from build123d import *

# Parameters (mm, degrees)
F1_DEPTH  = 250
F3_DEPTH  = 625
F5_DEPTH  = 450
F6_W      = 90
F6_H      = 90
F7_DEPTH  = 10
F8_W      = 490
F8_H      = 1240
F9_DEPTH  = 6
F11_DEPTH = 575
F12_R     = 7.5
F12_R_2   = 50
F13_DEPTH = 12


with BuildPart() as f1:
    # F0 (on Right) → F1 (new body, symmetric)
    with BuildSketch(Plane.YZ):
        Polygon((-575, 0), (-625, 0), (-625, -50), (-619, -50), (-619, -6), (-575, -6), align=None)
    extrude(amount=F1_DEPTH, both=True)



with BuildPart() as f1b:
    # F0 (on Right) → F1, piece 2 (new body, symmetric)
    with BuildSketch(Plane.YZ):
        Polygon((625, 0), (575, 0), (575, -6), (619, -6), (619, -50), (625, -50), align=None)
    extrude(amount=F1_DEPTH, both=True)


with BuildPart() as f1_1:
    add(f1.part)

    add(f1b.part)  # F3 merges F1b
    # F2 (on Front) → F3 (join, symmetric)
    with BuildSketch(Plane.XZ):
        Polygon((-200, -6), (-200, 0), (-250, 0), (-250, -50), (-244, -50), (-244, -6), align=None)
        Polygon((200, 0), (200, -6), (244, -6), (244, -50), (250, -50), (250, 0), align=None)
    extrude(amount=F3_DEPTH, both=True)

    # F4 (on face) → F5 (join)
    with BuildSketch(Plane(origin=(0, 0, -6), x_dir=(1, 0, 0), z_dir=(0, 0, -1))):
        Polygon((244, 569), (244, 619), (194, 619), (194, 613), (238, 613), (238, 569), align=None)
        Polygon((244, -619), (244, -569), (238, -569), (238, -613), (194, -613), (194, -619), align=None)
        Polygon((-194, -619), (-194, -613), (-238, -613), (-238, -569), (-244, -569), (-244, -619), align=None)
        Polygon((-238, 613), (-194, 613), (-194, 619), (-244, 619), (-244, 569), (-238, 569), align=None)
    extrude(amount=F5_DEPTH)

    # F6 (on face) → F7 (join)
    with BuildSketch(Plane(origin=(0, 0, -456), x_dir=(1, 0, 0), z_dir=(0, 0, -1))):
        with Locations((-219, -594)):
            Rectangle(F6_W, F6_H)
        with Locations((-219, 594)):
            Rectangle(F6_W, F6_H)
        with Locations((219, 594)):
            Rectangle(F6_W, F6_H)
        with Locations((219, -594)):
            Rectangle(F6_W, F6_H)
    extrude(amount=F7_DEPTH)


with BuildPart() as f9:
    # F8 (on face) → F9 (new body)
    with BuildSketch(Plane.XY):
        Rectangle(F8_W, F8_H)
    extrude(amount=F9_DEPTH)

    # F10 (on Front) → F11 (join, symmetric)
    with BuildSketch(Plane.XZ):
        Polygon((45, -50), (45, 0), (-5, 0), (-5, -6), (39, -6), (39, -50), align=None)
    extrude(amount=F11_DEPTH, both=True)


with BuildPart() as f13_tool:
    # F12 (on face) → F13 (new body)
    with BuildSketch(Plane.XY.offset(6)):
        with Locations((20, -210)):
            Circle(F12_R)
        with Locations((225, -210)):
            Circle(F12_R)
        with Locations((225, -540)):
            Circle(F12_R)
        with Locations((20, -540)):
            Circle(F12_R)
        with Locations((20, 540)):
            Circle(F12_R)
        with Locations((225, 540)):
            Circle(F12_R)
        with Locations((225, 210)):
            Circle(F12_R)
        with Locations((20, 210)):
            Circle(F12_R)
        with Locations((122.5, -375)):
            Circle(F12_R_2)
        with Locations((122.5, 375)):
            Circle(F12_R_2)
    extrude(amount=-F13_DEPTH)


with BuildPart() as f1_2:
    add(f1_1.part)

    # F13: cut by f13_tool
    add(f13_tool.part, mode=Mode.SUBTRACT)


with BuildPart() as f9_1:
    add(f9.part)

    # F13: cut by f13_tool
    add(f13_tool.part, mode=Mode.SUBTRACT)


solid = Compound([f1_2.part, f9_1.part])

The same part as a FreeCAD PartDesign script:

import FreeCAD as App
import Part
import Sketcher
Q = App.Units.Quantity

doc = App.newDocument("Part")
body = doc.addObject("PartDesign::Body", "Body")

# Sketch on YZ plane
sketch1 = doc.addObject("Sketcher::SketchObject", "Sketch")
body.addObject(sketch1)
sketch1.AttachmentSupport = (doc.YZ_Plane, [""])
sketch1.MapMode = "FlatFace"
sketch1.addGeometry(Part.LineSegment(App.Vector(-575, 0, 0), App.Vector(-625, 0, 0)), False)
sketch1.addGeometry(Part.LineSegment(App.Vector(-625, 0, 0), App.Vector(-625, -50, 0)), False)
sketch1.addGeometry(Part.LineSegment(App.Vector(-625, -50, 0), App.Vector(-619, -50, 0)), False)
sketch1.addGeometry(Part.LineSegment(App.Vector(-619, -50, 0), App.Vector(-619, -6, 0)), False)
sketch1.addGeometry(Part.LineSegment(App.Vector(-619, -6, 0), App.Vector(-575, -6, 0)), False)
sketch1.addGeometry(Part.LineSegment(App.Vector(-575, -6, 0), App.Vector(-575, 0, 0)), False)
sketch1.addConstraint(Sketcher.Constraint("Coincident", 0, 2, 1, 1))
sketch1.addConstraint(Sketcher.Constraint("Coincident", 1, 2, 2, 1))
sketch1.addConstraint(Sketcher.Constraint("Coincident", 2, 2, 3, 1))
sketch1.addConstraint(Sketcher.Constraint("Coincident", 3, 2, 4, 1))
sketch1.addConstraint(Sketcher.Constraint("Coincident", 4, 2, 5, 1))
sketch1.addConstraint(Sketcher.Constraint("Coincident", 5, 2, 0, 1))
sketch1.addConstraint(Sketcher.Constraint("Horizontal", 0))
sketch1.addConstraint(Sketcher.Constraint("Vertical", 1))
sketch1.addConstraint(Sketcher.Constraint("Horizontal", 2))
sketch1.addConstraint(Sketcher.Constraint("Vertical", 3))
sketch1.addConstraint(Sketcher.Constraint("Horizontal", 4))
sketch1.addConstraint(Sketcher.Constraint("Vertical", 5))
sketch1.addConstraint(Sketcher.Constraint("PointOnObject", 0, 2, -1))
sketch1.addConstraint(Sketcher.Constraint("Equal", 0, 1))
sketch1.addConstraint(Sketcher.Constraint("Equal", 4, 3))
sketch1.addConstraint(Sketcher.Constraint("DistanceX", 0, 2, 0, 1, Q("50 mm")))
sketch1.addConstraint(Sketcher.Constraint("DistanceX", 2, 1, 2, 2, Q("6 mm")))
sketch1.addConstraint(Sketcher.Constraint("DistanceX", 0, 2, -1, 1, Q("625 mm")))
pad1 = doc.addObject("PartDesign::Pad", "Pad")
body.addObject(pad1)
pad1.Profile = sketch1
pad1.Length = 500
pad1.Midplane = True
body2 = doc.addObject("PartDesign::Body", "Body001")

# Sketch on YZ plane
sketch2 = doc.addObject("Sketcher::SketchObject", "Sketch001")
body2.addObject(sketch2)
sketch2.AttachmentSupport = (doc.getObject("YZ_Plane001"), [""])
sketch2.MapMode = "FlatFace"
sketch2.addGeometry(Part.LineSegment(App.Vector(625, 0, 0), App.Vector(575, 0, 0)), False)
sketch2.addGeometry(Part.LineSegment(App.Vector(575, 0, 0), App.Vector(575, -6, 0)), False)
sketch2.addGeometry(Part.LineSegment(App.Vector(575, -6, 0), App.Vector(619, -6, 0)), False)
sketch2.addGeometry(Part.LineSegment(App.Vector(619, -6, 0), App.Vector(619, -50, 0)), False)
sketch2.addGeometry(Part.LineSegment(App.Vector(619, -50, 0), App.Vector(625, -50, 0)), False)
sketch2.addGeometry(Part.LineSegment(App.Vector(625, -50, 0), App.Vector(625, 0, 0)), False)
sketch2.addConstraint(Sketcher.Constraint("Coincident", 0, 2, 1, 1))
sketch2.addConstraint(Sketcher.Constraint("Coincident", 1, 2, 2, 1))
sketch2.addConstraint(Sketcher.Constraint("Coincident", 2, 2, 3, 1))
sketch2.addConstraint(Sketcher.Constraint("Coincident", 3, 2, 4, 1))
sketch2.addConstraint(Sketcher.Constraint("Coincident", 4, 2, 5, 1))
sketch2.addConstraint(Sketcher.Constraint("Coincident", 5, 2, 0, 1))
sketch2.addConstraint(Sketcher.Constraint("Horizontal", 0))
sketch2.addConstraint(Sketcher.Constraint("Vertical", 1))
sketch2.addConstraint(Sketcher.Constraint("Horizontal", 2))
sketch2.addConstraint(Sketcher.Constraint("Vertical", 3))
sketch2.addConstraint(Sketcher.Constraint("Horizontal", 4))
sketch2.addConstraint(Sketcher.Constraint("Vertical", 5))
sketch2.addConstraint(Sketcher.Constraint("PointOnObject", 0, 2, -1))
sketch2.addConstraint(Sketcher.Constraint("Equal", 4, 1))
sketch2.addConstraint(Sketcher.Constraint("Equal", 2, 3))
sketch2.addConstraint(Sketcher.Constraint("DistanceX", 0, 2, 0, 1, Q("50 mm")))
sketch2.addConstraint(Sketcher.Constraint("DistanceX", 2, 1, 2, 2, Q("44 mm")))
sketch2.addConstraint(Sketcher.Constraint("DistanceX", -1, 1, 0, 2, Q("575 mm")))
pad2 = doc.addObject("PartDesign::Pad", "Pad001")
body2.addObject(pad2)
pad2.Profile = sketch2
pad2.Length = 500
pad2.Midplane = True
body.AllowCompound = True
doc.recompute()

boolean = doc.addObject("PartDesign::Boolean", "Boolean")
body.addObject(boolean)
boolean.Type = "Fuse"
boolean.addObjects([body2])

# Sketch on XZ plane
sketch3 = doc.addObject("Sketcher::SketchObject", "Sketch002")
body.addObject(sketch3)
sketch3.AttachmentSupport = (doc.XZ_Plane, [""])
sketch3.MapMode = "FlatFace"
sketch3.addGeometry(Part.LineSegment(App.Vector(-200, -6, 0), App.Vector(-200, 0, 0)), False)
sketch3.addGeometry(Part.LineSegment(App.Vector(-200, 0, 0), App.Vector(-250, 0, 0)), False)
sketch3.addGeometry(Part.LineSegment(App.Vector(-250, 0, 0), App.Vector(-250, -50, 0)), False)
sketch3.addGeometry(Part.LineSegment(App.Vector(-250, -50, 0), App.Vector(-244, -50, 0)), False)
sketch3.addGeometry(Part.LineSegment(App.Vector(-244, -50, 0), App.Vector(-244, -6, 0)), False)
sketch3.addGeometry(Part.LineSegment(App.Vector(-244, -6, 0), App.Vector(-200, -6, 0)), False)
sketch3.addGeometry(Part.LineSegment(App.Vector(200, 0, 0), App.Vector(200, -6, 0)), False)
sketch3.addGeometry(Part.LineSegment(App.Vector(200, -6, 0), App.Vector(244, -6, 0)), False)
sketch3.addGeometry(Part.LineSegment(App.Vector(244, -6, 0), App.Vector(244, -50, 0)), False)
sketch3.addGeometry(Part.LineSegment(App.Vector(244, -50, 0), App.Vector(250, -50, 0)), False)
sketch3.addGeometry(Part.LineSegment(App.Vector(250, -50, 0), App.Vector(250, 0, 0)), False)
sketch3.addGeometry(Part.LineSegment(App.Vector(250, 0, 0), App.Vector(200, 0, 0)), False)
sketch3.addConstraint(Sketcher.Constraint("Coincident", 0, 2, 1, 1))
sketch3.addConstraint(Sketcher.Constraint("Coincident", 1, 2, 2, 1))
sketch3.addConstraint(Sketcher.Constraint("Coincident", 2, 2, 3, 1))
sketch3.addConstraint(Sketcher.Constraint("Coincident", 3, 2, 4, 1))
sketch3.addConstraint(Sketcher.Constraint("Coincident", 4, 2, 5, 1))
sketch3.addConstraint(Sketcher.Constraint("Coincident", 5, 2, 0, 1))
sketch3.addConstraint(Sketcher.Constraint("Coincident", 6, 2, 7, 1))
sketch3.addConstraint(Sketcher.Constraint("Coincident", 7, 2, 8, 1))
sketch3.addConstraint(Sketcher.Constraint("Coincident", 8, 2, 9, 1))
sketch3.addConstraint(Sketcher.Constraint("Coincident", 9, 2, 10, 1))
sketch3.addConstraint(Sketcher.Constraint("Coincident", 10, 2, 11, 1))
sketch3.addConstraint(Sketcher.Constraint("Coincident", 11, 2, 6, 1))
sketch3.addConstraint(Sketcher.Constraint("Vertical", 0))
sketch3.addConstraint(Sketcher.Constraint("Horizontal", 1))
sketch3.addConstraint(Sketcher.Constraint("Vertical", 2))
sketch3.addConstraint(Sketcher.Constraint("Horizontal", 3))
sketch3.addConstraint(Sketcher.Constraint("Vertical", 4))
sketch3.addConstraint(Sketcher.Constraint("Horizontal", 5))
sketch3.addConstraint(Sketcher.Constraint("Vertical", 6))
sketch3.addConstraint(Sketcher.Constraint("Horizontal", 7))
sketch3.addConstraint(Sketcher.Constraint("Vertical", 8))
sketch3.addConstraint(Sketcher.Constraint("Horizontal", 9))
sketch3.addConstraint(Sketcher.Constraint("Vertical", 10))
sketch3.addConstraint(Sketcher.Constraint("Horizontal", 11))
sketch3.addConstraint(Sketcher.Constraint("Symmetric", 1, 2, 10, 2, -1, 1))
sketch3.addConstraint(Sketcher.Constraint("Symmetric", 5, 2, 6, 2, -2))
sketch3.addConstraint(Sketcher.Constraint("Symmetric", 3, 2, 8, 2, -2))
sketch3.addConstraint(Sketcher.Constraint("PointOnObject", 0, 2, -1))
sketch3.addConstraint(Sketcher.Constraint("Equal", 9, 0))
sketch3.addConstraint(Sketcher.Constraint("Equal", 11, 2))
sketch3.addConstraint(Sketcher.Constraint("DistanceX", 1, 2, 1, 1, Q("50 mm")))
sketch3.addConstraint(Sketcher.Constraint("DistanceX", 3, 1, 3, 2, Q("6 mm")))
sketch3.addConstraint(Sketcher.Constraint("DistanceX", 0, 2, -1, 1, Q("200 mm")))
pad3 = doc.addObject("PartDesign::Pad", "Pad002")
body.addObject(pad3)
pad3.Profile = sketch3
pad3.Length = 1250
pad3.Midplane = True

# Sketch on XY plane
sketch4 = doc.addObject("Sketcher::SketchObject", "Sketch003")
body.addObject(sketch4)
sketch4.AttachmentSupport = (doc.XY_Plane, [""])
sketch4.MapMode = "FlatFace"
sketch4.AttachmentOffset = App.Placement(App.Vector(0, 0, -6), App.Rotation())
sketch4.addGeometry(Part.LineSegment(App.Vector(244, -569, 0), App.Vector(244, -619, 0)), False)
sketch4.addGeometry(Part.LineSegment(App.Vector(244, -619, 0), App.Vector(194, -619, 0)), False)
sketch4.addGeometry(Part.LineSegment(App.Vector(194, -619, 0), App.Vector(194, -613, 0)), False)
sketch4.addGeometry(Part.LineSegment(App.Vector(194, -613, 0), App.Vector(238, -613, 0)), False)
sketch4.addGeometry(Part.LineSegment(App.Vector(238, -613, 0), App.Vector(238, -569, 0)), False)
sketch4.addGeometry(Part.LineSegment(App.Vector(238, -569, 0), App.Vector(244, -569, 0)), False)
sketch4.addGeometry(Part.LineSegment(App.Vector(244, 619, 0), App.Vector(244, 569, 0)), False)
sketch4.addGeometry(Part.LineSegment(App.Vector(244, 569, 0), App.Vector(238, 569, 0)), False)
sketch4.addGeometry(Part.LineSegment(App.Vector(238, 569, 0), App.Vector(238, 613, 0)), False)
sketch4.addGeometry(Part.LineSegment(App.Vector(238, 613, 0), App.Vector(194, 613, 0)), False)
sketch4.addGeometry(Part.LineSegment(App.Vector(194, 613, 0), App.Vector(194, 619, 0)), False)
sketch4.addGeometry(Part.LineSegment(App.Vector(194, 619, 0), App.Vector(244, 619, 0)), False)
sketch4.addGeometry(Part.LineSegment(App.Vector(-194, 619, 0), App.Vector(-194, 613, 0)), False)
sketch4.addGeometry(Part.LineSegment(App.Vector(-194, 613, 0), App.Vector(-238, 613, 0)), False)
sketch4.addGeometry(Part.LineSegment(App.Vector(-238, 613, 0), App.Vector(-238, 569, 0)), False)
sketch4.addGeometry(Part.LineSegment(App.Vector(-238, 569, 0), App.Vector(-244, 569, 0)), False)
sketch4.addGeometry(Part.LineSegment(App.Vector(-244, 569, 0), App.Vector(-244, 619, 0)), False)
sketch4.addGeometry(Part.LineSegment(App.Vector(-244, 619, 0), App.Vector(-194, 619, 0)), False)
sketch4.addGeometry(Part.LineSegment(App.Vector(-238, -613, 0), App.Vector(-194, -613, 0)), False)
sketch4.addGeometry(Part.LineSegment(App.Vector(-194, -613, 0), App.Vector(-194, -619, 0)), False)
sketch4.addGeometry(Part.LineSegment(App.Vector(-194, -619, 0), App.Vector(-244, -619, 0)), False)
sketch4.addGeometry(Part.LineSegment(App.Vector(-244, -619, 0), App.Vector(-244, -569, 0)), False)
sketch4.addGeometry(Part.LineSegment(App.Vector(-244, -569, 0), App.Vector(-238, -569, 0)), False)
sketch4.addGeometry(Part.LineSegment(App.Vector(-238, -569, 0), App.Vector(-238, -613, 0)), False)
sketch4.addConstraint(Sketcher.Constraint("Coincident", 0, 2, 1, 1))
sketch4.addConstraint(Sketcher.Constraint("Coincident", 1, 2, 2, 1))
sketch4.addConstraint(Sketcher.Constraint("Coincident", 2, 2, 3, 1))
sketch4.addConstraint(Sketcher.Constraint("Coincident", 3, 2, 4, 1))
sketch4.addConstraint(Sketcher.Constraint("Coincident", 4, 2, 5, 1))
sketch4.addConstraint(Sketcher.Constraint("Coincident", 5, 2, 0, 1))
sketch4.addConstraint(Sketcher.Constraint("Coincident", 6, 2, 7, 1))
sketch4.addConstraint(Sketcher.Constraint("Coincident", 7, 2, 8, 1))
sketch4.addConstraint(Sketcher.Constraint("Coincident", 8, 2, 9, 1))
sketch4.addConstraint(Sketcher.Constraint("Coincident", 9, 2, 10, 1))
sketch4.addConstraint(Sketcher.Constraint("Coincident", 10, 2, 11, 1))
sketch4.addConstraint(Sketcher.Constraint("Coincident", 11, 2, 6, 1))
sketch4.addConstraint(Sketcher.Constraint("Coincident", 12, 2, 13, 1))
sketch4.addConstraint(Sketcher.Constraint("Coincident", 13, 2, 14, 1))
sketch4.addConstraint(Sketcher.Constraint("Coincident", 14, 2, 15, 1))
sketch4.addConstraint(Sketcher.Constraint("Coincident", 15, 2, 16, 1))
sketch4.addConstraint(Sketcher.Constraint("Coincident", 16, 2, 17, 1))
sketch4.addConstraint(Sketcher.Constraint("Coincident", 17, 2, 12, 1))
sketch4.addConstraint(Sketcher.Constraint("Coincident", 18, 2, 19, 1))
sketch4.addConstraint(Sketcher.Constraint("Coincident", 19, 2, 20, 1))
sketch4.addConstraint(Sketcher.Constraint("Coincident", 20, 2, 21, 1))
sketch4.addConstraint(Sketcher.Constraint("Coincident", 21, 2, 22, 1))
sketch4.addConstraint(Sketcher.Constraint("Coincident", 22, 2, 23, 1))
sketch4.addConstraint(Sketcher.Constraint("Coincident", 23, 2, 18, 1))
sketch4.addConstraint(Sketcher.Constraint("Vertical", 0))
sketch4.addConstraint(Sketcher.Constraint("Horizontal", 1))
sketch4.addConstraint(Sketcher.Constraint("Vertical", 2))
sketch4.addConstraint(Sketcher.Constraint("Horizontal", 3))
sketch4.addConstraint(Sketcher.Constraint("Vertical", 4))
sketch4.addConstraint(Sketcher.Constraint("Horizontal", 5))
sketch4.addConstraint(Sketcher.Constraint("Vertical", 6))
sketch4.addConstraint(Sketcher.Constraint("Horizontal", 7))
sketch4.addConstraint(Sketcher.Constraint("Vertical", 8))
sketch4.addConstraint(Sketcher.Constraint("Horizontal", 9))
sketch4.addConstraint(Sketcher.Constraint("Vertical", 10))
sketch4.addConstraint(Sketcher.Constraint("Horizontal", 11))
sketch4.addConstraint(Sketcher.Constraint("Vertical", 12))
sketch4.addConstraint(Sketcher.Constraint("Horizontal", 13))
sketch4.addConstraint(Sketcher.Constraint("Vertical", 14))
sketch4.addConstraint(Sketcher.Constraint("Horizontal", 15))
sketch4.addConstraint(Sketcher.Constraint("Vertical", 16))
sketch4.addConstraint(Sketcher.Constraint("Horizontal", 17))
sketch4.addConstraint(Sketcher.Constraint("Horizontal", 18))
sketch4.addConstraint(Sketcher.Constraint("Vertical", 19))
sketch4.addConstraint(Sketcher.Constraint("Horizontal", 20))
sketch4.addConstraint(Sketcher.Constraint("Vertical", 21))
sketch4.addConstraint(Sketcher.Constraint("Horizontal", 22))
sketch4.addConstraint(Sketcher.Constraint("Vertical", 23))
sketch4.addConstraint(Sketcher.Constraint("Symmetric", 2, 2, 12, 2, -1, 1))
sketch4.addConstraint(Sketcher.Constraint("Symmetric", 4, 2, 14, 2, -1, 1))
sketch4.addConstraint(Sketcher.Constraint("Symmetric", 0, 2, 16, 2, -1, 1))
sketch4.addConstraint(Sketcher.Constraint("Symmetric", 9, 2, 18, 2, -1, 1))
sketch4.addConstraint(Sketcher.Constraint("Symmetric", 11, 2, 20, 2, -1, 1))
sketch4.addConstraint(Sketcher.Constraint("Symmetric", 7, 2, 22, 2, -1, 1))
sketch4.addConstraint(Sketcher.Constraint("Symmetric", 9, 2, 12, 2, -2))
sketch4.addConstraint(Sketcher.Constraint("Symmetric", 7, 2, 14, 2, -2))
sketch4.addConstraint(Sketcher.Constraint("Symmetric", 11, 2, 16, 2, -2))
sketch4.addConstraint(Sketcher.Constraint("Equal", 20, 0))
sketch4.addConstraint(Sketcher.Constraint("Equal", 22, 2))
sketch4.addConstraint(Sketcher.Constraint("DistanceX", 1, 2, 1, 1, Q("50 mm")))
sketch4.addConstraint(Sketcher.Constraint("DistanceX", 3, 1, 3, 2, Q("44 mm")))
sketch4.addConstraint(Sketcher.Constraint("DistanceX", -1, 1, 0, 2, Q("244 mm")))
sketch4.addConstraint(Sketcher.Constraint("DistanceY", 0, 2, -1, 1, Q("619 mm")))
pad4 = doc.addObject("PartDesign::Pad", "Pad003")
body.addObject(pad4)
pad4.Profile = sketch4
pad4.Length = 450
pad4.Reversed = True

# Sketch on XY plane
sketch5 = doc.addObject("Sketcher::SketchObject", "Sketch004")
body.addObject(sketch5)
sketch5.AttachmentSupport = (doc.XY_Plane, [""])
sketch5.MapMode = "FlatFace"
sketch5.AttachmentOffset = App.Placement(App.Vector(0, 0, -456), App.Rotation())
sketch5.addGeometry(Part.LineSegment(App.Vector(-264, 549, 0), App.Vector(-264, 639, 0)), False)
sketch5.addGeometry(Part.LineSegment(App.Vector(-264, 639, 0), App.Vector(-174, 639, 0)), False)
sketch5.addGeometry(Part.LineSegment(App.Vector(-174, 639, 0), App.Vector(-174, 549, 0)), False)
sketch5.addGeometry(Part.LineSegment(App.Vector(-174, 549, 0), App.Vector(-264, 549, 0)), False)
sketch5.addGeometry(Part.LineSegment(App.Vector(-264, -639, 0), App.Vector(-264, -549, 0)), False)
sketch5.addGeometry(Part.LineSegment(App.Vector(-264, -549, 0), App.Vector(-174, -549, 0)), False)
sketch5.addGeometry(Part.LineSegment(App.Vector(-174, -549, 0), App.Vector(-174, -639, 0)), False)
sketch5.addGeometry(Part.LineSegment(App.Vector(-174, -639, 0), App.Vector(-264, -639, 0)), False)
sketch5.addGeometry(Part.LineSegment(App.Vector(174, -639, 0), App.Vector(174, -549, 0)), False)
sketch5.addGeometry(Part.LineSegment(App.Vector(174, -549, 0), App.Vector(264, -549, 0)), False)
sketch5.addGeometry(Part.LineSegment(App.Vector(264, -549, 0), App.Vector(264, -639, 0)), False)
sketch5.addGeometry(Part.LineSegment(App.Vector(264, -639, 0), App.Vector(174, -639, 0)), False)
sketch5.addGeometry(Part.LineSegment(App.Vector(174, 549, 0), App.Vector(174, 639, 0)), False)
sketch5.addGeometry(Part.LineSegment(App.Vector(174, 639, 0), App.Vector(264, 639, 0)), False)
sketch5.addGeometry(Part.LineSegment(App.Vector(264, 639, 0), App.Vector(264, 549, 0)), False)
sketch5.addGeometry(Part.LineSegment(App.Vector(264, 549, 0), App.Vector(174, 549, 0)), False)
sketch5.addConstraint(Sketcher.Constraint("Coincident", 0, 2, 1, 1))
sketch5.addConstraint(Sketcher.Constraint("Coincident", 1, 2, 2, 1))
sketch5.addConstraint(Sketcher.Constraint("Coincident", 2, 2, 3, 1))
sketch5.addConstraint(Sketcher.Constraint("Coincident", 3, 2, 0, 1))
sketch5.addConstraint(Sketcher.Constraint("Coincident", 4, 2, 5, 1))
sketch5.addConstraint(Sketcher.Constraint("Coincident", 5, 2, 6, 1))
sketch5.addConstraint(Sketcher.Constraint("Coincident", 6, 2, 7, 1))
sketch5.addConstraint(Sketcher.Constraint("Coincident", 7, 2, 4, 1))
sketch5.addConstraint(Sketcher.Constraint("Coincident", 8, 2, 9, 1))
sketch5.addConstraint(Sketcher.Constraint("Coincident", 9, 2, 10, 1))
sketch5.addConstraint(Sketcher.Constraint("Coincident", 10, 2, 11, 1))
sketch5.addConstraint(Sketcher.Constraint("Coincident", 11, 2, 8, 1))
sketch5.addConstraint(Sketcher.Constraint("Coincident", 12, 2, 13, 1))
sketch5.addConstraint(Sketcher.Constraint("Coincident", 13, 2, 14, 1))
sketch5.addConstraint(Sketcher.Constraint("Coincident", 14, 2, 15, 1))
sketch5.addConstraint(Sketcher.Constraint("Coincident", 15, 2, 12, 1))
sketch5.addConstraint(Sketcher.Constraint("Vertical", 0))
sketch5.addConstraint(Sketcher.Constraint("Horizontal", 1))
sketch5.addConstraint(Sketcher.Constraint("Vertical", 2))
sketch5.addConstraint(Sketcher.Constraint("Horizontal", 3))
sketch5.addConstraint(Sketcher.Constraint("Vertical", 4))
sketch5.addConstraint(Sketcher.Constraint("Horizontal", 5))
sketch5.addConstraint(Sketcher.Constraint("Vertical", 6))
sketch5.addConstraint(Sketcher.Constraint("Horizontal", 7))
sketch5.addConstraint(Sketcher.Constraint("Vertical", 8))
sketch5.addConstraint(Sketcher.Constraint("Horizontal", 9))
sketch5.addConstraint(Sketcher.Constraint("Vertical", 10))
sketch5.addConstraint(Sketcher.Constraint("Horizontal", 11))
sketch5.addConstraint(Sketcher.Constraint("Vertical", 12))
sketch5.addConstraint(Sketcher.Constraint("Horizontal", 13))
sketch5.addConstraint(Sketcher.Constraint("Vertical", 14))
sketch5.addConstraint(Sketcher.Constraint("Horizontal", 15))
sketch5.addConstraint(Sketcher.Constraint("Symmetric", 2, 2, 8, 2, -1, 1))
sketch5.addConstraint(Sketcher.Constraint("Symmetric", 0, 2, 10, 2, -1, 1))
sketch5.addConstraint(Sketcher.Constraint("Symmetric", 6, 2, 12, 2, -1, 1))
sketch5.addConstraint(Sketcher.Constraint("Symmetric", 4, 2, 14, 2, -1, 1))
sketch5.addConstraint(Sketcher.Constraint("Symmetric", 5, 2, 8, 2, -2))
sketch5.addConstraint(Sketcher.Constraint("Symmetric", 7, 2, 10, 2, -2))
sketch5.addConstraint(Sketcher.Constraint("Equal", 15, 0))
sketch5.addConstraint(Sketcher.Constraint("DistanceX", 1, 1, 1, 2, Q("90 mm")))
sketch5.addConstraint(Sketcher.Constraint("DistanceX", 0, 2, -1, 1, Q("264 mm")))
sketch5.addConstraint(Sketcher.Constraint("DistanceY", -1, 1, 0, 2, Q("639 mm")))
pad5 = doc.addObject("PartDesign::Pad", "Pad004")
body.addObject(pad5)
pad5.Profile = sketch5
pad5.Length = 10
pad5.Reversed = True
body3 = doc.addObject("PartDesign::Body", "Body002")

# Sketch on XY plane
sketch6 = doc.addObject("Sketcher::SketchObject", "Sketch005")
body3.addObject(sketch6)
sketch6.AttachmentSupport = (doc.getObject("XY_Plane002"), [""])
sketch6.MapMode = "FlatFace"
sketch6.addGeometry(Part.LineSegment(App.Vector(-245, 620, 0), App.Vector(-245, -620, 0)), False)
sketch6.addGeometry(Part.LineSegment(App.Vector(-245, -620, 0), App.Vector(245, -620, 0)), False)
sketch6.addGeometry(Part.LineSegment(App.Vector(245, -620, 0), App.Vector(245, 620, 0)), False)
sketch6.addGeometry(Part.LineSegment(App.Vector(245, 620, 0), App.Vector(-245, 620, 0)), False)
sketch6.addConstraint(Sketcher.Constraint("Coincident", 0, 2, 1, 1))
sketch6.addConstraint(Sketcher.Constraint("Coincident", 1, 2, 2, 1))
sketch6.addConstraint(Sketcher.Constraint("Coincident", 2, 2, 3, 1))
sketch6.addConstraint(Sketcher.Constraint("Coincident", 3, 2, 0, 1))
sketch6.addConstraint(Sketcher.Constraint("Vertical", 0))
sketch6.addConstraint(Sketcher.Constraint("Horizontal", 1))
sketch6.addConstraint(Sketcher.Constraint("Vertical", 2))
sketch6.addConstraint(Sketcher.Constraint("Horizontal", 3))
sketch6.addConstraint(Sketcher.Constraint("Symmetric", 0, 2, 2, 2, -1, 1))
sketch6.addConstraint(Sketcher.Constraint("DistanceX", 1, 1, 1, 2, Q("490 mm")))
sketch6.addConstraint(Sketcher.Constraint("DistanceY", 0, 2, 0, 1, Q("1240 mm")))
pad6 = doc.addObject("PartDesign::Pad", "Pad005")
body3.addObject(pad6)
pad6.Profile = sketch6
pad6.Length = 6

# Sketch on XZ plane
sketch7 = doc.addObject("Sketcher::SketchObject", "Sketch006")
body3.addObject(sketch7)
sketch7.AttachmentSupport = (doc.getObject("XZ_Plane002"), [""])
sketch7.MapMode = "FlatFace"
sketch7.addGeometry(Part.LineSegment(App.Vector(45, -50, 0), App.Vector(45, 0, 0)), False)
sketch7.addGeometry(Part.LineSegment(App.Vector(45, 0, 0), App.Vector(-5, 0, 0)), False)
sketch7.addGeometry(Part.LineSegment(App.Vector(-5, 0, 0), App.Vector(-5, -6, 0)), False)
sketch7.addGeometry(Part.LineSegment(App.Vector(-5, -6, 0), App.Vector(39, -6, 0)), False)
sketch7.addGeometry(Part.LineSegment(App.Vector(39, -6, 0), App.Vector(39, -50, 0)), False)
sketch7.addGeometry(Part.LineSegment(App.Vector(39, -50, 0), App.Vector(45, -50, 0)), False)
sketch7.addConstraint(Sketcher.Constraint("Coincident", 0, 2, 1, 1))
sketch7.addConstraint(Sketcher.Constraint("Coincident", 1, 2, 2, 1))
sketch7.addConstraint(Sketcher.Constraint("Coincident", 2, 2, 3, 1))
sketch7.addConstraint(Sketcher.Constraint("Coincident", 3, 2, 4, 1))
sketch7.addConstraint(Sketcher.Constraint("Coincident", 4, 2, 5, 1))
sketch7.addConstraint(Sketcher.Constraint("Coincident", 5, 2, 0, 1))
sketch7.addConstraint(Sketcher.Constraint("Vertical", 0))
sketch7.addConstraint(Sketcher.Constraint("Horizontal", 1))
sketch7.addConstraint(Sketcher.Constraint("Vertical", 2))
sketch7.addConstraint(Sketcher.Constraint("Horizontal", 3))
sketch7.addConstraint(Sketcher.Constraint("Vertical", 4))
sketch7.addConstraint(Sketcher.Constraint("Horizontal", 5))
sketch7.addConstraint(Sketcher.Constraint("PointOnObject", 0, 2, -1))
sketch7.addConstraint(Sketcher.Constraint("Equal", 1, 0))
sketch7.addConstraint(Sketcher.Constraint("Equal", 5, 2))
sketch7.addConstraint(Sketcher.Constraint("DistanceX", 1, 2, 1, 1, Q("50 mm")))
sketch7.addConstraint(Sketcher.Constraint("DistanceX", 3, 1, 3, 2, Q("44 mm")))
sketch7.addConstraint(Sketcher.Constraint("DistanceX", -1, 1, 0, 2, Q("45 mm")))
pad7 = doc.addObject("PartDesign::Pad", "Pad006")
body3.addObject(pad7)
pad7.Profile = sketch7
pad7.Length = 1150
pad7.Midplane = True
body4 = doc.addObject("PartDesign::Body", "Body003")
body4.AllowCompound = True

# Sketch on XY plane
sketch8 = doc.addObject("Sketcher::SketchObject", "Sketch007")
body4.addObject(sketch8)
sketch8.AttachmentSupport = (doc.getObject("XY_Plane003"), [""])
sketch8.MapMode = "FlatFace"
sketch8.AttachmentOffset = App.Placement(App.Vector(0, 0, 6), App.Rotation())
sketch8.addGeometry(Part.Circle(App.Vector(20, -210, 0), App.Vector(0, 0, 1), 8), False)
sketch8.addGeometry(Part.Circle(App.Vector(225, -210, 0), App.Vector(0, 0, 1), 8), False)
sketch8.addGeometry(Part.Circle(App.Vector(225, -540, 0), App.Vector(0, 0, 1), 8), False)
sketch8.addGeometry(Part.Circle(App.Vector(20, -540, 0), App.Vector(0, 0, 1), 8), False)
sketch8.addGeometry(Part.Circle(App.Vector(20, 540, 0), App.Vector(0, 0, 1), 8), False)
sketch8.addGeometry(Part.Circle(App.Vector(225, 540, 0), App.Vector(0, 0, 1), 8), False)
sketch8.addGeometry(Part.Circle(App.Vector(225, 210, 0), App.Vector(0, 0, 1), 8), False)
sketch8.addGeometry(Part.Circle(App.Vector(20, 210, 0), App.Vector(0, 0, 1), 8), False)
sketch8.addGeometry(Part.Circle(App.Vector(122, -375, 0), App.Vector(0, 0, 1), 50), False)
sketch8.addGeometry(Part.Circle(App.Vector(122, 375, 0), App.Vector(0, 0, 1), 50), False)
sketch8.addConstraint(Sketcher.Constraint("Equal", 0, 1))
sketch8.addConstraint(Sketcher.Constraint("Equal", 1, 2))
sketch8.addConstraint(Sketcher.Constraint("Equal", 2, 3))
sketch8.addConstraint(Sketcher.Constraint("Equal", 3, 4))
sketch8.addConstraint(Sketcher.Constraint("Equal", 4, 5))
sketch8.addConstraint(Sketcher.Constraint("Equal", 5, 6))
sketch8.addConstraint(Sketcher.Constraint("Equal", 6, 7))
sketch8.addConstraint(Sketcher.Constraint("Equal", 8, 9))
sketch8.addConstraint(Sketcher.Constraint("Symmetric", 3, 3, 4, 3, -1))
sketch8.addConstraint(Sketcher.Constraint("Symmetric", 2, 3, 5, 3, -1))
sketch8.addConstraint(Sketcher.Constraint("Symmetric", 1, 3, 6, 3, -1))
sketch8.addConstraint(Sketcher.Constraint("Symmetric", 0, 3, 7, 3, -1))
sketch8.addConstraint(Sketcher.Constraint("Symmetric", 8, 3, 9, 3, -1))
sketch8.addConstraint(Sketcher.Constraint("Horizontal", 0, 3, 1, 3))
sketch8.addConstraint(Sketcher.Constraint("Horizontal", 2, 3, 3, 3))
sketch8.addConstraint(Sketcher.Constraint("Vertical", 1, 3, 2, 3))
sketch8.addConstraint(Sketcher.Constraint("Vertical", 0, 3, 3, 3))
sketch8.addConstraint(Sketcher.Constraint("Diameter", 0, Q("15 mm")))
sketch8.addConstraint(Sketcher.Constraint("Diameter", 8, Q("100 mm")))
sketch8.addConstraint(Sketcher.Constraint("DistanceX", -1, 1, 0, 3, Q("20 mm")))
sketch8.addConstraint(Sketcher.Constraint("DistanceY", 0, 3, -1, 1, Q("210 mm")))
sketch8.addConstraint(Sketcher.Constraint("DistanceX", -1, 1, 1, 3, Q("225 mm")))
sketch8.addConstraint(Sketcher.Constraint("DistanceY", 2, 3, -1, 1, Q("540 mm")))
sketch8.addConstraint(Sketcher.Constraint("DistanceY", 8, 3, -1, 1, Q("375 mm")))
sketch8.addConstraint(Sketcher.Constraint("DistanceX", -1, 1, 8, 3, Q("122.5 mm")))
pad8 = doc.addObject("PartDesign::Pad", "Pad007")
body4.addObject(pad8)
pad8.Profile = sketch8
pad8.Length = 12
pad8.Reversed = True
doc.recompute()

body5 = doc.addObject("PartDesign::Body", "Body004")
body5.BaseFeature = body4
boolean2 = doc.addObject("PartDesign::Boolean", "Boolean001")
body.addObject(boolean2)
boolean2.Type = "Cut"
boolean2.addObjects([body5])
doc.recompute()

boolean3 = doc.addObject("PartDesign::Boolean", "Boolean002")
body3.addObject(boolean3)
boolean3.Type = "Cut"
boolean3.addObjects([body4])

doc.recompute()
